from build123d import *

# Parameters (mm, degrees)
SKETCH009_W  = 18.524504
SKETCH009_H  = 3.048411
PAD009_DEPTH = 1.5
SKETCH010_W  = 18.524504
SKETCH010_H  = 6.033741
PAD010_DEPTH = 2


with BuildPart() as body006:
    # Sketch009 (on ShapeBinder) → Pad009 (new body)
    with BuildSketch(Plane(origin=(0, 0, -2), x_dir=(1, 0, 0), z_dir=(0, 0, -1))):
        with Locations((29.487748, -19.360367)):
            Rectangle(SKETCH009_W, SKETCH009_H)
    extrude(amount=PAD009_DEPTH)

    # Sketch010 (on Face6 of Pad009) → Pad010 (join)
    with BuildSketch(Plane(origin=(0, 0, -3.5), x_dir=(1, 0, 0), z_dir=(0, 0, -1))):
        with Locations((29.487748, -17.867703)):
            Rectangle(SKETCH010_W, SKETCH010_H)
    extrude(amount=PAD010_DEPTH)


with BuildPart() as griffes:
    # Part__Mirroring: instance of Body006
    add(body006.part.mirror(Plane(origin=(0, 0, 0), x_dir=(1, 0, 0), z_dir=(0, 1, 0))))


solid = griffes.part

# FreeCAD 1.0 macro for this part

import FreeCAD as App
import Part
import Sketcher

V = App.Vector

doc = App.newDocument("Part")
body = doc.addObject("PartDesign::Body", "Body")

# Sketch on XY plane
sketch1 = body.newObject("Sketcher::SketchObject", "Sketch")
sketch1.AttachmentSupport = (doc.getObject("XY_Plane"), [""])
sketch1.MapMode = "FlatFace"
sketch1.AttachmentOffset = App.Placement(V(0, 0, -2), App.Rotation())
sketch1.addGeometry(Part.LineSegment(V(20.2, 17.8, 0), V(20.2, 20.9, 0)), False)
sketch1.addGeometry(Part.LineSegment(V(20.2, 20.9, 0), V(38.8, 20.9, 0)), False)
sketch1.addGeometry(Part.LineSegment(V(38.8, 20.9, 0), V(38.8, 17.8, 0)), False)
sketch1.addGeometry(Part.LineSegment(V(38.8, 17.8, 0), V(20.2, 17.8, 0)), False)
sketch1.addConstraint(Sketcher.Constraint("Coincident", 0, 2, 1, 1))
sketch1.addConstraint(Sketcher.Constraint("Coincident", 1, 2, 2, 1))
sketch1.addConstraint(Sketcher.Constraint("Coincident", 2, 2, 3, 1))
sketch1.addConstraint(Sketcher.Constraint("Coincident", 3, 2, 0, 1))
sketch1.addConstraint(Sketcher.Constraint("Vertical", 0))
sketch1.addConstraint(Sketcher.Constraint("Horizontal", 1))
sketch1.addConstraint(Sketcher.Constraint("Vertical", 2))
sketch1.addConstraint(Sketcher.Constraint("Horizontal", 3))
sketch1.addConstraint(Sketcher.Constraint("DistanceX", -1, 1, 1, 2, 38.75))
sketch1.addConstraint(Sketcher.Constraint("DistanceY", 0, 1, 0, 2, 3.048411))
sketch1.addConstraint(Sketcher.Constraint("DistanceX", 1, 1, 1, 2, 18.524504))
sketch1.addConstraint(Sketcher.Constraint("DistanceY", -1, 1, 2, 2, 17.836161))
pad1 = body.newObject("PartDesign::Pad", "Pad")
pad1.Profile = sketch1
pad1.Length = 1.5
pad1.Reversed = True

# Sketch on XY plane
sketch2 = body.newObject("Sketcher::SketchObject", "Sketch001")
sketch2.AttachmentSupport = (doc.getObject("XY_Plane"), [""])
sketch2.MapMode = "FlatFace"
sketch2.AttachmentOffset = App.Placement(V(0, 0, -3.5), App.Rotation())
sketch2.addGeometry(Part.LineSegment(V(20, 15, 0), V(20, 21, 0)), False)
sketch2.addGeometry(Part.LineSegment(V(20, 21, 0), V(39, 21, 0)), False)
sketch2.addGeometry(Part.LineSegment(V(39, 21, 0), V(39, 15, 0)), False)
sketch2.addGeometry(Part.LineSegment(V(39, 15, 0), V(20, 15, 0)), False)
sketch2.addConstraint(Sketcher.Constraint("Coincident", 0, 2, 1, 1))
sketch2.addConstraint(Sketcher.Constraint("Coincident", 1, 2, 2, 1))
sketch2.addConstraint(Sketcher.Constraint("Coincident", 2, 2, 3, 1))
sketch2.addConstraint(Sketcher.Constraint("Coincident", 3, 2, 0, 1))
sketch2.addConstraint(Sketcher.Constraint("Vertical", 0))
sketch2.addConstraint(Sketcher.Constraint("Horizontal", 1))
sketch2.addConstraint(Sketcher.Constraint("Vertical", 2))
sketch2.addConstraint(Sketcher.Constraint("Horizontal", 3))
sketch2.addConstraint(Sketcher.Constraint("DistanceX", -1, 1, 1, 2, 38.75))
sketch2.addConstraint(Sketcher.Constraint("DistanceY", 0, 1, 0, 2, 6.033741))
sketch2.addConstraint(Sketcher.Constraint("DistanceX", 1, 1, 1, 2, 18.524504))
sketch2.addConstraint(Sketcher.Constraint("DistanceY", -1, 1, 0, 2, 20.884573))
pad2 = body.newObject("PartDesign::Pad", "Pad001")
pad2.Profile = sketch2
pad2.Length = 2
pad2.Reversed = True
body2 = doc.addObject("PartDesign::Body", "Body001")
doc.recompute()

mirroring = doc.addObject("Part::Mirroring", "Mirroring")
mirroring.Source = body
mirroring.Base = V(0, 0, 0)
mirroring.Normal = V(0, 1, 0)
body2.BaseFeature = mirroring
doc.recompute()
body.Visibility = False
mirroring.Visibility = False

doc.recompute()
